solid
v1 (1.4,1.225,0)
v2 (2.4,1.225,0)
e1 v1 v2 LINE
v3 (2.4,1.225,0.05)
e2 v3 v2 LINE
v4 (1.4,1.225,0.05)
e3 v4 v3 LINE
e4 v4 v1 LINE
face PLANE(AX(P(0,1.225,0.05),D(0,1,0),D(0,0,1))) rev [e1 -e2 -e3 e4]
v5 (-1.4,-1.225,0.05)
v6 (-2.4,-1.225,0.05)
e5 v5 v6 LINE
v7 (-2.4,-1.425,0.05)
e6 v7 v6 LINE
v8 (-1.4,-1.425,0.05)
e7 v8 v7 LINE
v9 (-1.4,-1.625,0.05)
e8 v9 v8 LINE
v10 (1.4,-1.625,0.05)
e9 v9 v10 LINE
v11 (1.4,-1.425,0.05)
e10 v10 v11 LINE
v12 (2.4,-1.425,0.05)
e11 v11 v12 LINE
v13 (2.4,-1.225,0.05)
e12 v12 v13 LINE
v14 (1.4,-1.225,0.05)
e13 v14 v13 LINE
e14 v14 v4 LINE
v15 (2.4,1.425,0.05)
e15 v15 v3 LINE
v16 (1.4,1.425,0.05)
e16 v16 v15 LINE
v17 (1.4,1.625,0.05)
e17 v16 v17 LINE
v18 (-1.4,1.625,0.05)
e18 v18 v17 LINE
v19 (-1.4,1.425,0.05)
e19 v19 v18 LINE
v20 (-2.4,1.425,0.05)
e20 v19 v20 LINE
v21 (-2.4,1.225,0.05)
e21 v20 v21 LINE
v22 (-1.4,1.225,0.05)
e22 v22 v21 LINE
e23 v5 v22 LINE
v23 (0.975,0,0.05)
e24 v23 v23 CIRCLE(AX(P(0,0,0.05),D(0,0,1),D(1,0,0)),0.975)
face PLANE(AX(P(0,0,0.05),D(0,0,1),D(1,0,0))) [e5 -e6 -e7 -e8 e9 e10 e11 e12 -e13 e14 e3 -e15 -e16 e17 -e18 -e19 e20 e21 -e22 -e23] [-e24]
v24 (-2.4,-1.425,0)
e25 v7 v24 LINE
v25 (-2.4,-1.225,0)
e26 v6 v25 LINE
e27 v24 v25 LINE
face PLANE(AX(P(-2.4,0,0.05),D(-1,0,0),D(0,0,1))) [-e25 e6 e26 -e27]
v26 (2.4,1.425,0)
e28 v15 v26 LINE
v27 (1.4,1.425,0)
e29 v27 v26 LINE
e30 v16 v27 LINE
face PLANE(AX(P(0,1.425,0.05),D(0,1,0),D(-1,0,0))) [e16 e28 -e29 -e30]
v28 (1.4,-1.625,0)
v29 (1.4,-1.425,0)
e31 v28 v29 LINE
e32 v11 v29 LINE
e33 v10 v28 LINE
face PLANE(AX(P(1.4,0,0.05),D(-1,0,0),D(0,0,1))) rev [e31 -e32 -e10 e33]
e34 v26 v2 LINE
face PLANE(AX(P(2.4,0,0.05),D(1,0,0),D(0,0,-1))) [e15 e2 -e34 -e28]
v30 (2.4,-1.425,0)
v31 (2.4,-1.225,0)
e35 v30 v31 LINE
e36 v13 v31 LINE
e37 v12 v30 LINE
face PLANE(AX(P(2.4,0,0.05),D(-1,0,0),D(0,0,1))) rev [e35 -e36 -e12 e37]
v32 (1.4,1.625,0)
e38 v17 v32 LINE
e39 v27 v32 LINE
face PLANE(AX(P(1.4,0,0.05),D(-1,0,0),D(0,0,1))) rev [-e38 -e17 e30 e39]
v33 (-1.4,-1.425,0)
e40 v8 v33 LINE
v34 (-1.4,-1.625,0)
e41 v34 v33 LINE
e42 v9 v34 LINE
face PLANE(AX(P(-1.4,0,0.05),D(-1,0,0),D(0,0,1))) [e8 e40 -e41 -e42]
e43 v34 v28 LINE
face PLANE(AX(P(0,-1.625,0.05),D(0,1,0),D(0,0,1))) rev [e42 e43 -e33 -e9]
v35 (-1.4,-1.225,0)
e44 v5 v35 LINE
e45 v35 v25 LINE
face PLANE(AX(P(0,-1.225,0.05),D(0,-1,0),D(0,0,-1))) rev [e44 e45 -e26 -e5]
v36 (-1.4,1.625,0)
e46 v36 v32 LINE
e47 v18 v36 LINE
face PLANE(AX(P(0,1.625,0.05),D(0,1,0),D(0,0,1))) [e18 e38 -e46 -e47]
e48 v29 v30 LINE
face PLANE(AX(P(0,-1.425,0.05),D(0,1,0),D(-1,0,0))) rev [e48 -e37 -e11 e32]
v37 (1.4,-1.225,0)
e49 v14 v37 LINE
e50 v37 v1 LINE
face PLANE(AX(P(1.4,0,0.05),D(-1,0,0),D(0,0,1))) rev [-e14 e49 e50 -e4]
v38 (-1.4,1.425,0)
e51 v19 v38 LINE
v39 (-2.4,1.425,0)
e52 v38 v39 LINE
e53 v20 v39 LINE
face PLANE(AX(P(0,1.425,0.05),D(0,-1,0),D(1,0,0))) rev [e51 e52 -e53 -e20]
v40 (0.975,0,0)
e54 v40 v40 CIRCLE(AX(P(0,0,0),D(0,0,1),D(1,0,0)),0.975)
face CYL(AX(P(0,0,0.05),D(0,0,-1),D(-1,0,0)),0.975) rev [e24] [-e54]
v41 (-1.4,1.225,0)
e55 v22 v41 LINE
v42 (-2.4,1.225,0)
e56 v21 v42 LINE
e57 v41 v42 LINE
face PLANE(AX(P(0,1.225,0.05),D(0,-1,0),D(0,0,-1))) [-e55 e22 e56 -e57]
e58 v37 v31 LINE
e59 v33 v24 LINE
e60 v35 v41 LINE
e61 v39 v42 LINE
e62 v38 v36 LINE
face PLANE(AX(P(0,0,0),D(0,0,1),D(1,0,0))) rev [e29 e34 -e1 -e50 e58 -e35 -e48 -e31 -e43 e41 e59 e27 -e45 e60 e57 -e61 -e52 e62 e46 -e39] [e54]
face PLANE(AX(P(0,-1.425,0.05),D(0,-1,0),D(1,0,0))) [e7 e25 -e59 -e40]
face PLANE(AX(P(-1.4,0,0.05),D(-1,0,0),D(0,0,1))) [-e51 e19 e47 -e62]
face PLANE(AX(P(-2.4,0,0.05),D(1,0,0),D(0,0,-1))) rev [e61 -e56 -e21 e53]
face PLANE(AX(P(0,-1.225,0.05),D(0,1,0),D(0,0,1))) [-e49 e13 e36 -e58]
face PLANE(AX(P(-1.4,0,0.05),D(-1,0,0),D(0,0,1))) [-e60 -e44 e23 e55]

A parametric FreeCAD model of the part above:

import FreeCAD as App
import Part
import Sketcher

V = App.Vector
Q = App.Units.Quantity

doc = App.newDocument("Part")
params = doc.addObject("Spreadsheet::Sheet", "Params")
for row, (alias, value) in enumerate([
    ("sketch1_diameter", "1.95 mm"),
    ("sketch1_width", "1 mm"),
    ("sketch1_width2", "2.8 mm"),
    ("sketch1_height", "0.2 mm"),
    ("sketch1_height2", "2.45 mm"),
    ("pad1_length", "0.05 mm"),
], start=1):
    params.set(f"A{row}", alias)
    params.set(f"B{row}", "=" + value)
    params.setAlias(f"B{row}", alias)

body = doc.addObject("PartDesign::Body", "Body")

# Sketch on XY plane
sketch1 = body.newObject("Sketcher::SketchObject", "Sketch")
sketch1.AttachmentSupport = (doc.getObject("XY_Plane"), [""])
sketch1.MapMode = "FlatFace"
sketch1.addGeometry(Part.LineSegment(V(-1.4, -1.425, 0), V(-1.4, -1.625, 0)), False)
sketch1.addGeometry(Part.LineSegment(V(-1.4, -1.625, 0), V(1.4, -1.625, 0)), False)
sketch1.addGeometry(Part.LineSegment(V(1.4, -1.625, 0), V(1.4, -1.425, 0)), False)
sketch1.addGeometry(Part.LineSegment(V(1.4, -1.425, 0), V(2.4, -1.425, 0)), False)
sketch1.addGeometry(Part.LineSegment(V(2.4, -1.425, 0), V(2.4, -1.225, 0)), False)
sketch1.addGeometry(Part.LineSegment(V(2.4, -1.225, 0), V(1.4, -1.225, 0)), False)
sketch1.addGeometry(Part.LineSegment(V(1.4, -1.225, 0), V(1.4, 1.225, 0)), False)
sketch1.addGeometry(Part.LineSegment(V(1.4, 1.225, 0), V(2.4, 1.225, 0)), False)
sketch1.addGeometry(Part.LineSegment(V(2.4, 1.225, 0), V(2.4, 1.425, 0)), False)
sketch1.addGeometry(Part.LineSegment(V(2.4, 1.425, 0), V(1.4, 1.425, 0)), False)
sketch1.addGeometry(Part.LineSegment(V(1.4, 1.425, 0), V(1.4, 1.625, 0)), False)
sketch1.addGeometry(Part.LineSegment(V(1.4, 1.625, 0), V(-1.4, 1.625, 0)), False)
sketch1.addGeometry(Part.LineSegment(V(-1.4, 1.625, 0), V(-1.4, 1.425, 0)), False)
sketch1.addGeometry(Part.LineSegment(V(-1.4, 1.425, 0), V(-2.4, 1.425, 0)), False)
sketch1.addGeometry(Part.LineSegment(V(-2.4, 1.425, 0), V(-2.4, 1.225, 0)), False)
sketch1.addGeometry(Part.LineSegment(V(-2.4, 1.225, 0), V(-1.4, 1.225, 0)), False)
sketch1.addGeometry(Part.LineSegment(V(-1.4, 1.225, 0), V(-1.4, -1.225, 0)), False)
sketch1.addGeometry(Part.LineSegment(V(-1.4, -1.225, 0), V(-2.4, -1.225, 0)), False)
sketch1.addGeometry(Part.LineSegment(V(-2.4, -1.225, 0), V(-2.4, -1.425, 0)), False)
sketch1.addGeometry(Part.LineSegment(V(-2.4, -1.425, 0), V(-1.4, -1.425, 0)), False)
sketch1.addGeometry(Part.Circle(V(0, 0, 0), V(0, 0, 1), 0.975), False)
sketch1.addConstraint(Sketcher.Constraint("Coincident", 0, 2, 1, 1))
sketch1.addConstraint(Sketcher.Constraint("Coincident", 1, 2, 2, 1))
sketch1.addConstraint(Sketcher.Constraint("Coincident", 2, 2, 3, 1))
sketch1.addConstraint(Sketcher.Constraint("Coincident", 3, 2, 4, 1))
sketch1.addConstraint(Sketcher.Constraint("Coincident", 4, 2, 5, 1))
sketch1.addConstraint(Sketcher.Constraint("Coincident", 5, 2, 6, 1))
sketch1.addConstraint(Sketcher.Constraint("Coincident", 6, 2, 7, 1))
sketch1.addConstraint(Sketcher.Constraint("Coincident", 7, 2, 8, 1))
sketch1.addConstraint(Sketcher.Constraint("Coincident", 8, 2, 9, 1))
sketch1.addConstraint(Sketcher.Constraint("Coincident", 9, 2, 10, 1))
sketch1.addConstraint(Sketcher.Constraint("Coincident", 10, 2, 11, 1))
sketch1.addConstraint(Sketcher.Constraint("Coincident", 11, 2, 12, 1))
sketch1.addConstraint(Sketcher.Constraint("Coincident", 12, 2, 13, 1))
sketch1.addConstraint(Sketcher.Constraint("Coincident", 13, 2, 14, 1))
sketch1.addConstraint(Sketcher.Constraint("Coincident", 14, 2, 15, 1))
sketch1.addConstraint(Sketcher.Constraint("Coincident", 15, 2, 16, 1))
sketch1.addConstraint(Sketcher.Constraint("Coincident", 16, 2, 17, 1))
sketch1.addConstraint(Sketcher.Constraint("Coincident", 17, 2, 18, 1))
sketch1.addConstraint(Sketcher.Constraint("Coincident", 18, 2, 19, 1))
sketch1.addConstraint(Sketcher.Constraint("Coincident", 19, 2, 0, 1))
sketch1.addConstraint(Sketcher.Constraint("Vertical", 0))
sketch1.addConstraint(Sketcher.Constraint("Horizontal", 1))
sketch1.addConstraint(Sketcher.Constraint("Vertical", 2))
sketch1.addConstraint(Sketcher.Constraint("Horizontal", 3))
sketch1.addConstraint(Sketcher.Constraint("Vertical", 4))
sketch1.addConstraint(Sketcher.Constraint("Horizontal", 5))
sketch1.addConstraint(Sketcher.Constraint("Vertical", 6))
sketch1.addConstraint(Sketcher.Constraint("Horizontal", 7))
sketch1.addConstraint(Sketcher.Constraint("Vertical", 8))
sketch1.addConstraint(Sketcher.Constraint("Horizontal", 9))
sketch1.addConstraint(Sketcher.Constraint("Vertical", 10))
sketch1.addConstraint(Sketcher.Constraint("Horizontal", 11))
sketch1.addConstraint(Sketcher.Constraint("Vertical", 12))
sketch1.addConstraint(Sketcher.Constraint("Horizontal", 13))
sketch1.addConstraint(Sketcher.Constraint("Vertical", 14))
sketch1.addConstraint(Sketcher.Constraint("Horizontal", 15))
sketch1.addConstraint(Sketcher.Constraint("Vertical", 16))
sketch1.addConstraint(Sketcher.Constraint("Horizontal", 17))
sketch1.addConstraint(Sketcher.Constraint("Vertical", 18))
sketch1.addConstraint(Sketcher.Constraint("Horizontal", 19))
sketch1.addConstraint(Sketcher.Constraint("Coincident", 20, 3, -1, 1))
sketch1.addConstraint(Sketcher.Constraint("Symmetric", 0, 2, 10, 2, -1, 1))
sketch1.addConstraint(Sketcher.Constraint("Symmetric", 2, 2, 12, 2, -1, 1))
sketch1.addConstraint(Sketcher.Constraint("Symmetric", 4, 2, 14, 2, -1, 1))
sketch1.addConstraint(Sketcher.Constraint("Symmetric", 6, 2, 16, 2, -1, 1))
sketch1.addConstraint(Sketcher.Constraint("Symmetric", 8, 2, 18, 2, -1, 1))
sketch1.addConstraint(Sketcher.Constraint("Symmetric", 9, 2, 12, 2, -2))
sketch1.addConstraint(Sketcher.Constraint("Symmetric", 7, 2, 14, 2, -2))
sketch1.addConstraint(Sketcher.Constraint("Vertical", 2, 2, 5, 2))
sketch1.addConstraint(Sketcher.Constraint("Equal", 2, 4))
sketch1.addConstraint(Sketcher.Constraint("Diameter", 20, Q("1.95 mm")))
sketch1.addConstraint(Sketcher.Constraint("DistanceX", 3, 1, 3, 2, Q("1 mm")))
sketch1.addConstraint(Sketcher.Constraint("DistanceX", 1, 1, 1, 2, Q("2.8 mm")))
sketch1.addConstraint(Sketcher.Constraint("DistanceY", 0, 2, 0, 1, Q("0.2 mm")))
sketch1.addConstraint(Sketcher.Constraint("DistanceY", 6, 1, 6, 2, Q("2.45 mm")))
sketch1.setExpression("Constraints[50]", "Params.sketch1_diameter")
sketch1.setExpression("Constraints[51]", "Params.sketch1_width")
sketch1.setExpression("Constraints[52]", "Params.sketch1_width2")
sketch1.setExpression("Constraints[53]", "Params.sketch1_height")
sketch1.setExpression("Constraints[54]", "Params.sketch1_height2")
pad1 = body.newObject("PartDesign::Pad", "Pad")
pad1.Profile = sketch1
pad1.setExpression("Length", "Params.pad1_length")

doc.recompute()
